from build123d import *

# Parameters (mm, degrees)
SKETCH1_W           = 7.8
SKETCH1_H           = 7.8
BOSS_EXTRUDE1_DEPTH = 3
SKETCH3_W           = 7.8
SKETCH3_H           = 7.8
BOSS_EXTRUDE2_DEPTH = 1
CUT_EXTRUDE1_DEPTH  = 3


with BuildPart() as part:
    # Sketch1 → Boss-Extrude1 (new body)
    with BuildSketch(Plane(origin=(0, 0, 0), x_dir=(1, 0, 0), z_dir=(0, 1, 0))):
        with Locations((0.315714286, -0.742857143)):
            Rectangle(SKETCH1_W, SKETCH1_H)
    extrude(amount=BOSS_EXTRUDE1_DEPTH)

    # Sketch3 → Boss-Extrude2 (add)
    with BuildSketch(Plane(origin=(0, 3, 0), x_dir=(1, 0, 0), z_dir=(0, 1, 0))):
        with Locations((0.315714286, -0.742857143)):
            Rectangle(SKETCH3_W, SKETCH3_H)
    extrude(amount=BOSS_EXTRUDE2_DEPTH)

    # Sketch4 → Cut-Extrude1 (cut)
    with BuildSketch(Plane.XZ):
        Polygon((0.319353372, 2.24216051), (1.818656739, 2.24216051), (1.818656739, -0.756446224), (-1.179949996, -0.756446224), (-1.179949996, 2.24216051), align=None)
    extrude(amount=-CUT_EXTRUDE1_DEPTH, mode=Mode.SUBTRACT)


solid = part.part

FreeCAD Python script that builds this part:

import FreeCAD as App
import Part
import Sketcher

V = App.Vector

doc = App.newDocument("Part")
params = doc.addObject("Spreadsheet::Sheet", "Params")
for row, (alias, value) in enumerate([
    ("sketch1_width", "7.8 mm"),
    ("pad1_length", "3 mm"),
    ("sketch2_width", "7.8 mm"),
    ("pad2_length", "1 mm"),
    ("pocket1_length", "3 mm"),
], start=1):
    params.set(f"A{row}", alias)
    params.set(f"B{row}", "=" + value)
    params.setAlias(f"B{row}", alias)

body = doc.addObject("PartDesign::Body", "Body")

sketch1 = body.newObject("Sketcher::SketchObject", "Sketch")
sketch1.AttachmentSupport = (doc.getObject("XZ_Plane"), [""])
sketch1.MapMode = "FlatFace"
sketch1.addGeometry(Part.LineSegment(V(-4, -3, 0), V(-4, 5, 0)), False)
sketch1.addGeometry(Part.LineSegment(V(-4, 5, 0), V(4, 5, 0)), False)
sketch1.addGeometry(Part.LineSegment(V(4, 5, 0), V(4, -3, 0)), False)
sketch1.addGeometry(Part.LineSegment(V(4, -3, 0), V(-4, -3, 0)), False)
sketch1.addConstraint(Sketcher.Constraint("Coincident", 0, 2, 1, 1))
sketch1.addConstraint(Sketcher.Constraint("Coincident", 1, 2, 2, 1))
sketch1.addConstraint(Sketcher.Constraint("Coincident", 2, 2, 3, 1))
sketch1.addConstraint(Sketcher.Constraint("Coincident", 3, 2, 0, 1))
sketch1.addConstraint(Sketcher.Constraint("Vertical", 0))
sketch1.addConstraint(Sketcher.Constraint("Horizontal", 1))
sketch1.addConstraint(Sketcher.Constraint("Vertical", 2))
sketch1.addConstraint(Sketcher.Constraint("Horizontal", 3))
sketch1.addConstraint(Sketcher.Constraint("Equal", 3, 0))
sketch1.addConstraint(Sketcher.Constraint("DistanceX", 1, 1, 1, 2, 7.8))
sketch1.addConstraint(Sketcher.Constraint("DistanceX", 0, 2, -1, 1, 3.584286))
sketch1.addConstraint(Sketcher.Constraint("DistanceY", -1, 1, 0, 2, 4.642857))
sketch1.setExpression("Constraints[9]", "Params.sketch1_width")
pad1 = body.newObject("PartDesign::Pad", "Pad")
pad1.Profile = sketch1
pad1.setExpression("Length", "Params.pad1_length")
pad1.Reversed = True

sketch2 = body.newObject("Sketcher::SketchObject", "Sketch001")
sketch2.AttachmentSupport = (doc.getObject("XZ_Plane"), [""])
sketch2.MapMode = "FlatFace"
sketch2.AttachmentOffset = App.Placement(V(0, 0, -3), App.Rotation())
sketch2.addGeometry(Part.LineSegment(V(-4, -3, 0), V(-4, 5, 0)), False)
sketch2.addGeometry(Part.LineSegment(V(-4, 5, 0), V(4, 5, 0)), False)
sketch2.addGeometry(Part.LineSegment(V(4, 5, 0), V(4, -3, 0)), False)
sketch2.addGeometry(Part.LineSegment(V(4, -3, 0), V(-4, -3, 0)), False)
sketch2.addConstraint(Sketcher.Constraint("Coincident", 0, 2, 1, 1))
sketch2.addConstraint(Sketcher.Constraint("Coincident", 1, 2, 2, 1))
sketch2.addConstraint(Sketcher.Constraint("Coincident", 2, 2, 3, 1))
sketch2.addConstraint(Sketcher.Constraint("Coincident", 3, 2, 0, 1))
sketch2.addConstraint(Sketcher.Constraint("Vertical", 0))
sketch2.addConstraint(Sketcher.Constraint("Horizontal", 1))
sketch2.addConstraint(Sketcher.Constraint("Vertical", 2))
sketch2.addConstraint(Sketcher.Constraint("Horizontal", 3))
sketch2.addConstraint(Sketcher.Constraint("Equal", 3, 0))
sketch2.addConstraint(Sketcher.Constraint("DistanceX", 1, 1, 1, 2, 7.8))
sketch2.addConstraint(Sketcher.Constraint("DistanceX", 0, 2, -1, 1, 3.584286))
sketch2.addConstraint(Sketcher.Constraint("DistanceY", -1, 1, 0, 2, 4.642857))
sketch2.setExpression("Constraints[9]", "Params.sketch2_width")
pad2 = body.newObject("PartDesign::Pad", "Pad001")
pad2.Profile = sketch2
pad2.setExpression("Length", "Params.pad2_length")
pad2.Reversed = True

sketch3 = body.newObject("Sketcher::SketchObject", "Sketch002")
sketch3.AttachmentSupport = (doc.getObject("XZ_Plane"), [""])
sketch3.MapMode = "FlatFace"
sketch3.addGeometry(Part.LineSegment(V(1.8, 2.2, 0), V(-1.2, 2.2, 0)), False)
sketch3.addGeometry(Part.LineSegment(V(-1.2, 2.2, 0), V(-1.2, -0.8, 0)), False)
sketch3.addGeometry(Part.LineSegment(V(-1.2, -0.8, 0), V(1.8, -0.8, 0)), False)
sketch3.addGeometry(Part.LineSegment(V(1.8, -0.8, 0), V(1.8, 2.2, 0)), False)
sketch3.addConstraint(Sketcher.Constraint("Coincident", 0, 2, 1, 1))
sketch3.addConstraint(Sketcher.Constraint("Coincident", 1, 2, 2, 1))
sketch3.addConstraint(Sketcher.Constraint("Coincident", 2, 2, 3, 1))
sketch3.addConstraint(Sketcher.Constraint("Coincident", 3, 2, 0, 1))
sketch3.addConstraint(Sketcher.Constraint("Horizontal", 0))
sketch3.addConstraint(Sketcher.Constraint("Vertical", 1))
sketch3.addConstraint(Sketcher.Constraint("Horizontal", 2))
sketch3.addConstraint(Sketcher.Constraint("Vertical", 3))
sketch3.addConstraint(Sketcher.Constraint("Equal", 2, 1))
sketch3.addConstraint(Sketcher.Constraint("DistanceX", 0, 2, 0, 1, 2.998607))
sketch3.addConstraint(Sketcher.Constraint("DistanceX", 0, 2, -1, 1, 1.17995))
sketch3.addConstraint(Sketcher.Constraint("DistanceY", -1, 1, 0, 2, 2.242161))
pocket1 = body.newObject("PartDesign::Pocket", "Pocket")
pocket1.Profile = sketch3
pocket1.setExpression("Length", "Params.pocket1_length")

doc.recompute()
